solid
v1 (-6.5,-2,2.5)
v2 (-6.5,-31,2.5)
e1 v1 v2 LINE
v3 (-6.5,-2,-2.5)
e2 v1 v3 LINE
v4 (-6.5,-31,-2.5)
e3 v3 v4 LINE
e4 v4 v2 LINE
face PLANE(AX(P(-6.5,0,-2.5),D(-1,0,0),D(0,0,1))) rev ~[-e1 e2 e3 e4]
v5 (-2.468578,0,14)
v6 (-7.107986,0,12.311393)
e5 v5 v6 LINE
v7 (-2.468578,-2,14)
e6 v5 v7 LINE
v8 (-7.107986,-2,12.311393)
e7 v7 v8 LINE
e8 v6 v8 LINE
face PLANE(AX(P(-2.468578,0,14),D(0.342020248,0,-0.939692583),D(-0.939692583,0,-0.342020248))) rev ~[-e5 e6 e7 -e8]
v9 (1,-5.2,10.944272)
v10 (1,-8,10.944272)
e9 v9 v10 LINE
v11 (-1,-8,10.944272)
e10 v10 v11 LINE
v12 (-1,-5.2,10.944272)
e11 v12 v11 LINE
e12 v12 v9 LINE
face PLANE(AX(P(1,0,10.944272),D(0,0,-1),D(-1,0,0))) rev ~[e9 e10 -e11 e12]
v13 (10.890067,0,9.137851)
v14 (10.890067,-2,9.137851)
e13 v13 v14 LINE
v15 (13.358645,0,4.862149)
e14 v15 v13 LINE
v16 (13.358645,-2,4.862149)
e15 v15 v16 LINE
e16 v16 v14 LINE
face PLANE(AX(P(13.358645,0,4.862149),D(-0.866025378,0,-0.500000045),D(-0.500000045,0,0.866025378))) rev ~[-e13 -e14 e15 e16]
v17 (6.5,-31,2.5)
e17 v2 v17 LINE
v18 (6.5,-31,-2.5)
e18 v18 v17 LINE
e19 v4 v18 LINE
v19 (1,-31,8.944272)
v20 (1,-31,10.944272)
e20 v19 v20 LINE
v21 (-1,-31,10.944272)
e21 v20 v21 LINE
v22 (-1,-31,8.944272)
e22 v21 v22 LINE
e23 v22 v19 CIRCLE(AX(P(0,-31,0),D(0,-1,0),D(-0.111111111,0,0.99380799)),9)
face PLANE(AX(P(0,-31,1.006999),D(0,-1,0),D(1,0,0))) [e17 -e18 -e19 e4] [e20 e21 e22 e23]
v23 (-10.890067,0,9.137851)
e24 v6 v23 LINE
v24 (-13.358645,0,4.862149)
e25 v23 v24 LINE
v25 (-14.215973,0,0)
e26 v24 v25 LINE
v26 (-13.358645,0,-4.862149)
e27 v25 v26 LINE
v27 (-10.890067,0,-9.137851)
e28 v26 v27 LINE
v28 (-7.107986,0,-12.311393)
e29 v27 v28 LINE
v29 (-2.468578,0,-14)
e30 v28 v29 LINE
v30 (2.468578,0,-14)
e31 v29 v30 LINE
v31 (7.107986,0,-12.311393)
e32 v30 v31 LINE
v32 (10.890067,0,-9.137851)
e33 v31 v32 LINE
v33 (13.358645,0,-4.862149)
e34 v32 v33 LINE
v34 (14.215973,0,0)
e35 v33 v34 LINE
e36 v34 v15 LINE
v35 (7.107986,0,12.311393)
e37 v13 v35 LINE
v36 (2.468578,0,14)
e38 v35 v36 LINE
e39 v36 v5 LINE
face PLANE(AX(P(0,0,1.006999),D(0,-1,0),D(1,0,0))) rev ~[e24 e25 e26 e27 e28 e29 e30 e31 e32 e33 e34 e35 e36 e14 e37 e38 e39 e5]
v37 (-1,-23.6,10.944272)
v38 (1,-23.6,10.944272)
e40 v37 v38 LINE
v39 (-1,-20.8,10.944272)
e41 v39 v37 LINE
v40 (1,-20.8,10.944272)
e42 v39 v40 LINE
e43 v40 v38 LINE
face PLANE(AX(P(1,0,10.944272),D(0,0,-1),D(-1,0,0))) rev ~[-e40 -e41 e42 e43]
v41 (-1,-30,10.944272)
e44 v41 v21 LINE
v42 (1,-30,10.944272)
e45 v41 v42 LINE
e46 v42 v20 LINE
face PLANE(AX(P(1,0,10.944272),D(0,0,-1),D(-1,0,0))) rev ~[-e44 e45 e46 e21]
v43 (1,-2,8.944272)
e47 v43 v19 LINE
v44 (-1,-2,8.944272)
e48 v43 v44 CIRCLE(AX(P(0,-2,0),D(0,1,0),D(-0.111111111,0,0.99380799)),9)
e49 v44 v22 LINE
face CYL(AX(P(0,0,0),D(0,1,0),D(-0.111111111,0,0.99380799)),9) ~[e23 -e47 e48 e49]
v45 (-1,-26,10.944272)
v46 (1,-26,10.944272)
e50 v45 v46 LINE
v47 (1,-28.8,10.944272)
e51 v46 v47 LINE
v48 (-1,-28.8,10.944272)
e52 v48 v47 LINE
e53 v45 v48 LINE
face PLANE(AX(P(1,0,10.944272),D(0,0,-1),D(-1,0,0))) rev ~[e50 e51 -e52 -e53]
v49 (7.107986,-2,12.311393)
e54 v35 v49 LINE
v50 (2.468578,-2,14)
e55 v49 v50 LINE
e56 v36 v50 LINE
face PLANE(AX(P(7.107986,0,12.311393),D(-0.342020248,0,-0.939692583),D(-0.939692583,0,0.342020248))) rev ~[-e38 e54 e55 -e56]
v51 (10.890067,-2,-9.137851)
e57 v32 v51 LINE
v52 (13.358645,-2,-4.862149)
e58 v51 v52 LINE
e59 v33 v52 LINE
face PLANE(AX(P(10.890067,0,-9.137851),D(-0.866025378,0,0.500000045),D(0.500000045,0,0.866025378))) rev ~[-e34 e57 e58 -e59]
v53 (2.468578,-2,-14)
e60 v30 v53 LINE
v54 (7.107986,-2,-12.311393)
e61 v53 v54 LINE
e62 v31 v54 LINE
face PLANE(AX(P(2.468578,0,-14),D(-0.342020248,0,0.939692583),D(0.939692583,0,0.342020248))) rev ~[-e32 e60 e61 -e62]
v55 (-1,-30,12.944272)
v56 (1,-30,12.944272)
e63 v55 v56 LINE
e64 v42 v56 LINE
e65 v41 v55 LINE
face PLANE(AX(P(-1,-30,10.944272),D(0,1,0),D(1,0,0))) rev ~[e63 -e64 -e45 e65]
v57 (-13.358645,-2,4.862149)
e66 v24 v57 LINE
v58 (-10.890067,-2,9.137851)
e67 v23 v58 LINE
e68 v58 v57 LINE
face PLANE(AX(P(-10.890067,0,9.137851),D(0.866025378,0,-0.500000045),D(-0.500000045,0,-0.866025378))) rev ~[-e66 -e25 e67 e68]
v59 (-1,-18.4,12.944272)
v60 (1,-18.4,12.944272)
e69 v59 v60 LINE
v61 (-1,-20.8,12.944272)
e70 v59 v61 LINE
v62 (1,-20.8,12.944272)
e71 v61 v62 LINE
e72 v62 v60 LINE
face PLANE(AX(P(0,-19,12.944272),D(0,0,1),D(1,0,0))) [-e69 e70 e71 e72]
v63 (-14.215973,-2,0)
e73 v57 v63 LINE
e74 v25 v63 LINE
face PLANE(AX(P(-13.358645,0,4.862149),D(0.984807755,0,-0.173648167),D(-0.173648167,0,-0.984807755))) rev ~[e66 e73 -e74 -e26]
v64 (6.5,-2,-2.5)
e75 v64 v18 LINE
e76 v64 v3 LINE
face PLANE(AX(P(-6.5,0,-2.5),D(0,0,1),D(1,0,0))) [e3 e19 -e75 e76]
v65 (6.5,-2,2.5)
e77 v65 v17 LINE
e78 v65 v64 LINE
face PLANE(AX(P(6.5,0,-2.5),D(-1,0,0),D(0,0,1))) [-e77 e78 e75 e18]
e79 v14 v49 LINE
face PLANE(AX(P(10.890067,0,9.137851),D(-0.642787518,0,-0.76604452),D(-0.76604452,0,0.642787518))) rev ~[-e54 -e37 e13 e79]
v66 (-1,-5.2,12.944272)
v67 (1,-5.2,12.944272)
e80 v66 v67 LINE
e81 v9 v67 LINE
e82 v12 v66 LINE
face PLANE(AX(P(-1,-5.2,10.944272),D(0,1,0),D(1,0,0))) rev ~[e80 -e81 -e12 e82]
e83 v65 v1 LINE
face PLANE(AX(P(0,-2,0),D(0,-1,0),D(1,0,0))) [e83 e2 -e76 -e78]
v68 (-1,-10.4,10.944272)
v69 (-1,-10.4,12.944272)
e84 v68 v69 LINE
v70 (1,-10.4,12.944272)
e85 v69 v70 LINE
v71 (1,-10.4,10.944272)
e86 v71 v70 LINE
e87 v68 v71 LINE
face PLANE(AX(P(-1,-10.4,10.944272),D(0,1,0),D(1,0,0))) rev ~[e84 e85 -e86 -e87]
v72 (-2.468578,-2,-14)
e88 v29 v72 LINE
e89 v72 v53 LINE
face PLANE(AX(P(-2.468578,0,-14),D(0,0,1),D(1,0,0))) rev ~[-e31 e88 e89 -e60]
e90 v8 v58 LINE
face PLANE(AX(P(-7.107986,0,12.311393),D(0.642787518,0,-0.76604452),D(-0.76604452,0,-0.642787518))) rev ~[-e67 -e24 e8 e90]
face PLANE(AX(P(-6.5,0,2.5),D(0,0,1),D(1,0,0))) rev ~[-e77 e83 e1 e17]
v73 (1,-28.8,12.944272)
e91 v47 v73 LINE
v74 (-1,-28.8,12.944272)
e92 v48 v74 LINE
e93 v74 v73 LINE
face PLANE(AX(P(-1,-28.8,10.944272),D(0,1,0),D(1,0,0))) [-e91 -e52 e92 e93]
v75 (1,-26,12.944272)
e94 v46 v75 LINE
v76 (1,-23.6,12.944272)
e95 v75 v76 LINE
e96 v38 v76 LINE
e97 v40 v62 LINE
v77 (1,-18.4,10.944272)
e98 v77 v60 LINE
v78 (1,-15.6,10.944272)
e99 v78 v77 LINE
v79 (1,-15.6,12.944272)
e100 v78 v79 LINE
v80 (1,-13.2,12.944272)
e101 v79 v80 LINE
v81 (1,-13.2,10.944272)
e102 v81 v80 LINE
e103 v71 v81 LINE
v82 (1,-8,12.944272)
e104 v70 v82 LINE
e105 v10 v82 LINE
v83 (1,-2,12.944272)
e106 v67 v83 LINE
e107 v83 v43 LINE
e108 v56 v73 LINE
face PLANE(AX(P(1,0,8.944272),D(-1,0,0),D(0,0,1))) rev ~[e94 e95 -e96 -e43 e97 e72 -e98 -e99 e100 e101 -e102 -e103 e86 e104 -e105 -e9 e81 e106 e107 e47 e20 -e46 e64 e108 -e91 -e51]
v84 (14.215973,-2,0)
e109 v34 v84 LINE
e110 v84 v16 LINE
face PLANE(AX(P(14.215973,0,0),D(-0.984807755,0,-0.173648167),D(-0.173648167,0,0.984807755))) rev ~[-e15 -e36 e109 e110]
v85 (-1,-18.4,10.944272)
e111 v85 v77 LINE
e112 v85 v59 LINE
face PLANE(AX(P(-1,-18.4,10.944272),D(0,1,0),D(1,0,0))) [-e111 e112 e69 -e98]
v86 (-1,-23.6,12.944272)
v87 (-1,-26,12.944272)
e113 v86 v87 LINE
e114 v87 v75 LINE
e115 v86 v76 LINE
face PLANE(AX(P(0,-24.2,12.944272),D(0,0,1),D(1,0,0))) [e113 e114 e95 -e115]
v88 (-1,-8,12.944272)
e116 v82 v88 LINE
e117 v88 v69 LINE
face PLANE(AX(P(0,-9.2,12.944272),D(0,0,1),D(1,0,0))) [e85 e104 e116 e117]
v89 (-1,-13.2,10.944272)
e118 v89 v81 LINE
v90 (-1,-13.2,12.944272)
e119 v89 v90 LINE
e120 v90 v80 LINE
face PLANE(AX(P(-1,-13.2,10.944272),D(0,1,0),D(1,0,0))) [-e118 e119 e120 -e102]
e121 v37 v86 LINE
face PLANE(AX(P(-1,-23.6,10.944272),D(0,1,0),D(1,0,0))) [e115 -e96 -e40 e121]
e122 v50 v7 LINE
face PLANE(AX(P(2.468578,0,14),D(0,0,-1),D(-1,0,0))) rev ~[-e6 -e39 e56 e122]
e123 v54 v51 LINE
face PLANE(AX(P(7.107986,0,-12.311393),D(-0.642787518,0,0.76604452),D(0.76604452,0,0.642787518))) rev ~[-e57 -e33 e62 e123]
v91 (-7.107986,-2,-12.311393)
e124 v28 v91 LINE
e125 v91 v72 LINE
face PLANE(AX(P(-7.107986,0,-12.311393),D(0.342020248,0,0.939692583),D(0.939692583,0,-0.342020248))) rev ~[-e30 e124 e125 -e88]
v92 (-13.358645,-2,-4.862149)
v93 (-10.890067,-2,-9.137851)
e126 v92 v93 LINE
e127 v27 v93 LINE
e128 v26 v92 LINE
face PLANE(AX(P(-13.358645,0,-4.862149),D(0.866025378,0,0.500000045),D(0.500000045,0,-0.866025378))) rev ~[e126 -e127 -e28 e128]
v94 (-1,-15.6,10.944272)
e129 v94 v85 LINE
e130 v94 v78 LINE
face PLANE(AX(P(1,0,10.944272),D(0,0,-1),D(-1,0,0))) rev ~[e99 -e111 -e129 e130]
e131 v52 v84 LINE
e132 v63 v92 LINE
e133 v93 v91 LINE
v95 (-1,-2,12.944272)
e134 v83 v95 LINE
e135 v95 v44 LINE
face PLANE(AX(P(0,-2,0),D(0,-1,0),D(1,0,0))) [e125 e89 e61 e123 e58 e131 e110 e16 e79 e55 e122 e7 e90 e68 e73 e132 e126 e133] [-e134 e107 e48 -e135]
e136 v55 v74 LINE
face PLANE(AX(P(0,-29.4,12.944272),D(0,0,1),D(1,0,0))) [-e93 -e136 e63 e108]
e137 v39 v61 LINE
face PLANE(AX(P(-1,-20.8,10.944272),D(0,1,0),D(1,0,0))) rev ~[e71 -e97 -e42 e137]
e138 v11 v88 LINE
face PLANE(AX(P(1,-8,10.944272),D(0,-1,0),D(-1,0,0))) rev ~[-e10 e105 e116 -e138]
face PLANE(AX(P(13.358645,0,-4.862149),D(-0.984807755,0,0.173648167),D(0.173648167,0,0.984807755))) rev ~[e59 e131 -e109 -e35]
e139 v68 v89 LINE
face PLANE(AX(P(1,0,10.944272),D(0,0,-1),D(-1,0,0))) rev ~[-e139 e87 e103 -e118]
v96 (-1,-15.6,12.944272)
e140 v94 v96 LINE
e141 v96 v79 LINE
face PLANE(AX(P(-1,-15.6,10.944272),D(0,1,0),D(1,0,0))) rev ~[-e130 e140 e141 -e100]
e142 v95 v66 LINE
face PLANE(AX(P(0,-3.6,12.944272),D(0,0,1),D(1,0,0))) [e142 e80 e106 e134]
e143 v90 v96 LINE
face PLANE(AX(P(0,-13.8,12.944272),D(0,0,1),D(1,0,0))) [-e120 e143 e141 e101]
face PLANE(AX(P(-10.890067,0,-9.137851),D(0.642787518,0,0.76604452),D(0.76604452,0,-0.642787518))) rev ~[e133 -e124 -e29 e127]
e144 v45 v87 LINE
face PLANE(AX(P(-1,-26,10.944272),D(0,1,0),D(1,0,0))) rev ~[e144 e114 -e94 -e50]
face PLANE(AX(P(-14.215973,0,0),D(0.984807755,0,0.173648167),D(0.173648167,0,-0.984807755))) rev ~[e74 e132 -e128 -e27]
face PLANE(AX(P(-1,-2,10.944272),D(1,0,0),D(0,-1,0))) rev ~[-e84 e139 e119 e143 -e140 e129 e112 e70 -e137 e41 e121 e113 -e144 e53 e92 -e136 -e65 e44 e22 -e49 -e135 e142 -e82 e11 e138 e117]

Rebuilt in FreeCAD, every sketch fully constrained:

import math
import FreeCAD as App
import Part
import Sketcher

V = App.Vector
Q = App.Units.Quantity


def add_polygon(sketch, points):
    """Adds a closed chain of lines whose ends are joined by coincident constraints."""
    first, n = sketch.GeometryCount, len(points)
    for a, b in zip(points, points[1:] + points[:1]):
        sketch.addGeometry(Part.LineSegment(App.Vector(*a, 0), App.Vector(*b, 0)), False)
    for i in range(n):
        sketch.addConstraint(Sketcher.Constraint("Coincident", first + i, 2, first + (i + 1) % n, 1))

doc = App.newDocument("Part")
body = doc.addObject("PartDesign::Body", "Body")

# Sketch on XZ plane
sketch1 = doc.addObject("Sketcher::SketchObject", "Sketch")
body.addObject(sketch1)
sketch1.AttachmentSupport = (doc.XZ_Plane, [""])
sketch1.MapMode = "FlatFace"
add_polygon(sketch1, [(2.468578, 14), (-2.468578, 14), (-7.107986, 12.311393), (-10.890067, 9.137851), (-13.358645, 4.862149), (-14.215973, 0), (-13.358645, -4.862149), (-10.890067, -9.137851), (-7.107986, -12.311393), (-2.468578, -14), (2.468578, -14), (7.107986, -12.311393), (10.890067, -9.137851), (13.358645, -4.862149), (14.215973, 0), (13.358645, 4.862149), (10.890067, 9.137851), (7.107986, 12.311393)])  # lines 0-17
sketch1.addConstraint([
    Sketcher.Constraint("Horizontal", 0),
    Sketcher.Constraint("Horizontal", 9),
    Sketcher.Constraint("Symmetric", 0, 2, 9, 2, -1, 1),
    Sketcher.Constraint("Symmetric", 1, 2, 10, 2, -1, 1),
    Sketcher.Constraint("Symmetric", 2, 2, 11, 2, -1, 1),
    Sketcher.Constraint("Symmetric", 3, 2, 12, 2, -1, 1),
    Sketcher.Constraint("Symmetric", 4, 2, 13, 2, -1, 1),
    Sketcher.Constraint("Symmetric", 5, 2, 14, 2, -1, 1),
    Sketcher.Constraint("Symmetric", 6, 2, 15, 2, -1, 1),
    Sketcher.Constraint("Symmetric", 7, 2, 16, 2, -1, 1),
    Sketcher.Constraint("Symmetric", 7, 2, 10, 2, -2),
    Sketcher.Constraint("Symmetric", 6, 2, 11, 2, -2),
    Sketcher.Constraint("Symmetric", 5, 2, 12, 2, -2),
    Sketcher.Constraint("PointOnObject", 4, 2, -1),
    Sketcher.Constraint("Parallel", 8, 17),
    Sketcher.Constraint("Vertical", 0, 2, 8, 2),
    Sketcher.Constraint("Equal", 1, 2),
    Sketcher.Constraint("Equal", 2, 3),
    Sketcher.Constraint("Equal", 3, 4),
    Sketcher.Constraint("Angle", 1, Q("-159.999994 deg")),
    Sketcher.Constraint("Angle", 2, Q("-140.000007 deg")),
    Sketcher.Constraint("Angle", 3, Q("-120.000003 deg")),
    Sketcher.Constraint("Angle", 4, Q("-99.999999 deg")),
    Sketcher.Constraint("DistanceY", -1, 1, 0, 2, Q("14 mm")),
    Sketcher.Constraint("DistanceX", 0, 2, 0, 1, Q("4.937156 mm")),
])
pad1 = doc.addObject("PartDesign::Pad", "Pad")
body.addObject(pad1)
pad1.Profile = sketch1
pad1.Length = 2

# Sketch on XZ plane
sketch2 = doc.addObject("Sketcher::SketchObject", "Sketch001")
body.addObject(sketch2)
sketch2.AttachmentSupport = (doc.XZ_Plane, [""])
sketch2.MapMode = "FlatFace"
sketch2.addGeometry(Part.LineSegment(V(-1, 10.944272, 0), V(-1, 8.944272, 0)), False)  # 0
sketch2.addGeometry(Part.ArcOfCircle(Part.Circle(V(0, 0, 0), V(0, 0, 1), 9), math.radians(96.37937), math.radians(443.62063)), False)  # 1
sketch2.addGeometry(Part.LineSegment(V(1, 8.944272, 0), V(1, 10.944272, 0)), False)  # 2
sketch2.addGeometry(Part.LineSegment(V(1, 10.944272, 0), V(-1, 10.944272, 0)), False)  # 3
add_polygon(sketch2, [(6.5, -2.5), (-6.5, -2.5), (-6.5, 2.5), (6.5, 2.5)])  # lines 4-7
sketch2.addConstraint([
    Sketcher.Constraint("Coincident", 0, 2, 1, 1),
    Sketcher.Constraint("Coincident", 1, 2, 2, 1),
    Sketcher.Constraint("Coincident", 2, 2, 3, 1),
    Sketcher.Constraint("Coincident", 3, 2, 0, 1),
    Sketcher.Constraint("Vertical", 0),
    Sketcher.Constraint("Vertical", 2),
    Sketcher.Constraint("Horizontal", 3),
    Sketcher.Constraint("Horizontal", 4),
    Sketcher.Constraint("Vertical", 5),
    Sketcher.Constraint("Horizontal", 6),
    Sketcher.Constraint("Vertical", 7),
    Sketcher.Constraint("Coincident", 1, 3, -1, 1),
    Sketcher.Constraint("Symmetric", 4, 2, 6, 2, -1, 1),
    Sketcher.Constraint("Horizontal", 0, 2, 1, 2),
    Sketcher.Constraint("Equal", 3, 0),
    Sketcher.Constraint("Radius", 1, Q("9 mm")),
    Sketcher.Constraint("DistanceX", 3, 2, 3, 1, Q("2 mm")),
    Sketcher.Constraint("DistanceX", 4, 2, 4, 1, Q("13 mm")),
    Sketcher.Constraint("DistanceY", 5, 1, 5, 2, Q("5 mm")),
])
pad2 = doc.addObject("PartDesign::Pad", "Pad001")
body.addObject(pad2)
pad2.Profile = sketch2
pad2.Length = 31

# Sketch on XY plane
sketch3 = doc.addObject("Sketcher::SketchObject", "Sketch002")
body.addObject(sketch3)
sketch3.AttachmentSupport = (doc.XY_Plane, [""])
sketch3.MapMode = "FlatFace"
sketch3.AttachmentOffset = App.Placement(V(0, 0, 10.944272), App.Rotation())
add_polygon(sketch3, [(1, -2), (-1, -2), (-1, -5.2), (1, -5.2)])  # lines 0-3
add_polygon(sketch3, [(1, -8), (-1, -8), (-1, -10.4), (1, -10.4)])  # lines 4-7
add_polygon(sketch3, [(-1, -13.2), (-1, -15.6), (1, -15.6), (1, -13.2)])  # lines 8-11
add_polygon(sketch3, [(-1, -18.4), (-1, -20.8), (1, -20.8), (1, -18.4)])  # lines 12-15
add_polygon(sketch3, [(-1, -23.6), (-1, -26), (1, -26), (1, -23.6)])  # lines 16-19
add_polygon(sketch3, [(-1, -28.8), (-1, -30), (1, -30), (1, -28.8)])  # lines 20-23
sketch3.addConstraint([
    Sketcher.Constraint("Horizontal", 0),
    Sketcher.Constraint("Vertical", 1),
    Sketcher.Constraint("Horizontal", 2),
    Sketcher.Constraint("Vertical", 3),
    Sketcher.Constraint("Horizontal", 4),
    Sketcher.Constraint("Vertical", 5),
    Sketcher.Constraint("Horizontal", 6),
    Sketcher.Constraint("Vertical", 7),
    Sketcher.Constraint("Vertical", 8),
    Sketcher.Constraint("Horizontal", 9),
    Sketcher.Constraint("Vertical", 10),
    Sketcher.Constraint("Horizontal", 11),
    Sketcher.Constraint("Vertical", 12),
    Sketcher.Constraint("Horizontal", 13),
    Sketcher.Constraint("Vertical", 14),
    Sketcher.Constraint("Horizontal", 15),
    Sketcher.Constraint("Vertical", 16),
    Sketcher.Constraint("Horizontal", 17),
    Sketcher.Constraint("Vertical", 18),
    Sketcher.Constraint("Horizontal", 19),
    Sketcher.Constraint("Vertical", 20),
    Sketcher.Constraint("Horizontal", 21),
    Sketcher.Constraint("Vertical", 22),
    Sketcher.Constraint("Horizontal", 23),
    Sketcher.Constraint("Vertical", 1, 2, 4, 2),
    Sketcher.Constraint("Vertical", 3, 2, 6, 2),
    Sketcher.Constraint("Vertical", 5, 2, 8, 2),
    Sketcher.Constraint("Vertical", 7, 2, 9, 2),
    Sketcher.Constraint("Vertical", 11, 2, 12, 2),
    Sketcher.Constraint("Vertical", 10, 2, 13, 2),
    Sketcher.Constraint("Vertical", 15, 2, 16, 2),
    Sketcher.Constraint("Vertical", 14, 2, 17, 2),
    Sketcher.Constraint("Vertical", 19, 2, 20, 2),
    Sketcher.Constraint("Vertical", 18, 2, 21, 2),
    Sketcher.Constraint("Equal", 7, 8),
    Sketcher.Constraint("Equal", 10, 12),
    Sketcher.Constraint("Equal", 14, 16),
    Sketcher.Constraint("DistanceX", 0, 2, 0, 1, Q("2 mm")),
    Sketcher.Constraint("DistanceY", 1, 2, 1, 1, Q("3.2 mm")),
    Sketcher.Constraint("DistanceY", 5, 2, 5, 1, Q("2.4 mm")),
    Sketcher.Constraint("DistanceY", 20, 2, 20, 1, Q("1.2 mm")),
    Sketcher.Constraint("DistanceX", 0, 2, -1, 1, Q("1 mm")),
    Sketcher.Constraint("DistanceY", 0, 2, -1, 1, Q("2 mm")),
    Sketcher.Constraint("DistanceY", 4, 2, -1, 1, Q("8 mm")),
    Sketcher.Constraint("DistanceY", 16, 2, -1, 1, Q("26 mm")),
    Sketcher.Constraint("DistanceY", 20, 2, -1, 1, Q("30 mm")),
    Sketcher.Constraint("DistanceY", 8, 2, -1, 1, Q("15.6 mm")),
    Sketcher.Constraint("DistanceY", 12, 2, -1, 1, Q("20.8 mm")),
])
pad3 = doc.addObject("PartDesign::Pad", "Pad002")
body.addObject(pad3)
pad3.Profile = sketch3
pad3.Length = 2

doc.recompute()
